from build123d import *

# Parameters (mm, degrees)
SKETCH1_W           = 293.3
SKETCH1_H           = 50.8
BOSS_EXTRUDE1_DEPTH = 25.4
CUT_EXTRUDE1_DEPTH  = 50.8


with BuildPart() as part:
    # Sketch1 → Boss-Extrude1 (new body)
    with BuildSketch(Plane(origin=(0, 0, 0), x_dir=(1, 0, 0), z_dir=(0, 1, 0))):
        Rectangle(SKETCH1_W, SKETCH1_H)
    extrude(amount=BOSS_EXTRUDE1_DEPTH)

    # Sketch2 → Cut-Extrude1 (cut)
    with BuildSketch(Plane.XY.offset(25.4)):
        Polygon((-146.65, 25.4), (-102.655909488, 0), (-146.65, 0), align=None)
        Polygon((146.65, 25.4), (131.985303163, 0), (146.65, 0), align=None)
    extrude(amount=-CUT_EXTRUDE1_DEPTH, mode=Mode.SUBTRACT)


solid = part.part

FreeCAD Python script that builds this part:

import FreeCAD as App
import Part
import Sketcher
from FreeCAD import Vector
Q = App.Units.Quantity

doc = App.newDocument("Part")
body = doc.addObject("PartDesign::Body", "Body")

sketch1 = doc.addObject("Sketcher::SketchObject", "Sketch")
body.addObject(sketch1)
sketch1.AttachmentSupport = (doc.XZ_Plane, [""])
sketch1.MapMode = "FlatFace"
sketch1.addGeometry([
    Part.LineSegment(Vector(-147, -25, 0), Vector(-147, 25, 0)),
    Part.LineSegment(Vector(-147, 25, 0), Vector(147, 25, 0)),
    Part.LineSegment(Vector(147, 25, 0), Vector(147, -25, 0)),
    Part.LineSegment(Vector(147, -25, 0), Vector(-147, -25, 0)),
], False)
sketch1.addConstraint([
    Sketcher.Constraint("Coincident", 0, 2, 1, 1),
    Sketcher.Constraint("Coincident", 1, 2, 2, 1),
    Sketcher.Constraint("Coincident", 2, 2, 3, 1),
    Sketcher.Constraint("Coincident", 3, 2, 0, 1),
    Sketcher.Constraint("Vertical", 0),
    Sketcher.Constraint("Horizontal", 1),
    Sketcher.Constraint("Vertical", 2),
    Sketcher.Constraint("Horizontal", 3),
    Sketcher.Constraint("Symmetric", 0, 2, 2, 2, -1, 1),
    Sketcher.Constraint("DistanceY", 0, 1, 0, 2, Q("2 in")),
    Sketcher.Constraint("DistanceX", 1, 1, 1, 2, 293.3),
])
pad1 = doc.addObject("PartDesign::Pad", "Pad")
body.addObject(pad1)
pad1.Profile = sketch1
pad1.Length = Q("1 in")
pad1.Reversed = True

sketch2 = doc.addObject("Sketcher::SketchObject", "Sketch001")
body.addObject(sketch2)
sketch2.AttachmentSupport = (doc.XY_Plane, [""])
sketch2.MapMode = "FlatFace"
sketch2.AttachmentOffset = App.Placement(Vector(0, 0, 1 * 25.4), App.Rotation())
sketch2.addGeometry([
    Part.LineSegment(Vector(-103, 0, 0), Vector(-147, 25, 0)),
    Part.LineSegment(Vector(-147, 25, 0), Vector(-147, 0, 0)),
    Part.LineSegment(Vector(-147, 0, 0), Vector(-103, 0, 0)),
    Part.LineSegment(Vector(147, 25, 0), Vector(132, 0, 0)),
    Part.LineSegment(Vector(132, 0, 0), Vector(147, 0, 0)),
    Part.LineSegment(Vector(147, 0, 0), Vector(147, 25, 0)),
], False)
sketch2.addConstraint([
    Sketcher.Constraint("Coincident", 0, 2, 1, 1),
    Sketcher.Constraint("Coincident", 1, 2, 2, 1),
    Sketcher.Constraint("Coincident", 2, 2, 0, 1),
    Sketcher.Constraint("Coincident", 3, 2, 4, 1),
    Sketcher.Constraint("Coincident", 4, 2, 5, 1),
    Sketcher.Constraint("Coincident", 5, 2, 3, 1),
    Sketcher.Constraint("Vertical", 1),
    Sketcher.Constraint("Horizontal", 2),
    Sketcher.Constraint("Horizontal", 4),
    Sketcher.Constraint("Vertical", 5),
    Sketcher.Constraint("Symmetric", 1, 2, 4, 2, -1, 1),
    Sketcher.Constraint("PointOnObject", 1, 2, -1),
    Sketcher.Constraint("Perpendicular", 0, 3),
    Sketcher.Constraint("Horizontal", 0, 2, 5, 2),
    Sketcher.Constraint("DistanceY", 1, 2, 1, 1, Q("1 in")),
    Sketcher.Constraint("Distance", 0, Q("2 in")),
    Sketcher.Constraint("DistanceX", 0, 2, -1, 1, 146.65),
])
pocket1 = doc.addObject("PartDesign::Pocket", "Pocket")
body.addObject(pocket1)
pocket1.Profile = sketch2
pocket1.Length = Q("2 in")

doc.recompute()
